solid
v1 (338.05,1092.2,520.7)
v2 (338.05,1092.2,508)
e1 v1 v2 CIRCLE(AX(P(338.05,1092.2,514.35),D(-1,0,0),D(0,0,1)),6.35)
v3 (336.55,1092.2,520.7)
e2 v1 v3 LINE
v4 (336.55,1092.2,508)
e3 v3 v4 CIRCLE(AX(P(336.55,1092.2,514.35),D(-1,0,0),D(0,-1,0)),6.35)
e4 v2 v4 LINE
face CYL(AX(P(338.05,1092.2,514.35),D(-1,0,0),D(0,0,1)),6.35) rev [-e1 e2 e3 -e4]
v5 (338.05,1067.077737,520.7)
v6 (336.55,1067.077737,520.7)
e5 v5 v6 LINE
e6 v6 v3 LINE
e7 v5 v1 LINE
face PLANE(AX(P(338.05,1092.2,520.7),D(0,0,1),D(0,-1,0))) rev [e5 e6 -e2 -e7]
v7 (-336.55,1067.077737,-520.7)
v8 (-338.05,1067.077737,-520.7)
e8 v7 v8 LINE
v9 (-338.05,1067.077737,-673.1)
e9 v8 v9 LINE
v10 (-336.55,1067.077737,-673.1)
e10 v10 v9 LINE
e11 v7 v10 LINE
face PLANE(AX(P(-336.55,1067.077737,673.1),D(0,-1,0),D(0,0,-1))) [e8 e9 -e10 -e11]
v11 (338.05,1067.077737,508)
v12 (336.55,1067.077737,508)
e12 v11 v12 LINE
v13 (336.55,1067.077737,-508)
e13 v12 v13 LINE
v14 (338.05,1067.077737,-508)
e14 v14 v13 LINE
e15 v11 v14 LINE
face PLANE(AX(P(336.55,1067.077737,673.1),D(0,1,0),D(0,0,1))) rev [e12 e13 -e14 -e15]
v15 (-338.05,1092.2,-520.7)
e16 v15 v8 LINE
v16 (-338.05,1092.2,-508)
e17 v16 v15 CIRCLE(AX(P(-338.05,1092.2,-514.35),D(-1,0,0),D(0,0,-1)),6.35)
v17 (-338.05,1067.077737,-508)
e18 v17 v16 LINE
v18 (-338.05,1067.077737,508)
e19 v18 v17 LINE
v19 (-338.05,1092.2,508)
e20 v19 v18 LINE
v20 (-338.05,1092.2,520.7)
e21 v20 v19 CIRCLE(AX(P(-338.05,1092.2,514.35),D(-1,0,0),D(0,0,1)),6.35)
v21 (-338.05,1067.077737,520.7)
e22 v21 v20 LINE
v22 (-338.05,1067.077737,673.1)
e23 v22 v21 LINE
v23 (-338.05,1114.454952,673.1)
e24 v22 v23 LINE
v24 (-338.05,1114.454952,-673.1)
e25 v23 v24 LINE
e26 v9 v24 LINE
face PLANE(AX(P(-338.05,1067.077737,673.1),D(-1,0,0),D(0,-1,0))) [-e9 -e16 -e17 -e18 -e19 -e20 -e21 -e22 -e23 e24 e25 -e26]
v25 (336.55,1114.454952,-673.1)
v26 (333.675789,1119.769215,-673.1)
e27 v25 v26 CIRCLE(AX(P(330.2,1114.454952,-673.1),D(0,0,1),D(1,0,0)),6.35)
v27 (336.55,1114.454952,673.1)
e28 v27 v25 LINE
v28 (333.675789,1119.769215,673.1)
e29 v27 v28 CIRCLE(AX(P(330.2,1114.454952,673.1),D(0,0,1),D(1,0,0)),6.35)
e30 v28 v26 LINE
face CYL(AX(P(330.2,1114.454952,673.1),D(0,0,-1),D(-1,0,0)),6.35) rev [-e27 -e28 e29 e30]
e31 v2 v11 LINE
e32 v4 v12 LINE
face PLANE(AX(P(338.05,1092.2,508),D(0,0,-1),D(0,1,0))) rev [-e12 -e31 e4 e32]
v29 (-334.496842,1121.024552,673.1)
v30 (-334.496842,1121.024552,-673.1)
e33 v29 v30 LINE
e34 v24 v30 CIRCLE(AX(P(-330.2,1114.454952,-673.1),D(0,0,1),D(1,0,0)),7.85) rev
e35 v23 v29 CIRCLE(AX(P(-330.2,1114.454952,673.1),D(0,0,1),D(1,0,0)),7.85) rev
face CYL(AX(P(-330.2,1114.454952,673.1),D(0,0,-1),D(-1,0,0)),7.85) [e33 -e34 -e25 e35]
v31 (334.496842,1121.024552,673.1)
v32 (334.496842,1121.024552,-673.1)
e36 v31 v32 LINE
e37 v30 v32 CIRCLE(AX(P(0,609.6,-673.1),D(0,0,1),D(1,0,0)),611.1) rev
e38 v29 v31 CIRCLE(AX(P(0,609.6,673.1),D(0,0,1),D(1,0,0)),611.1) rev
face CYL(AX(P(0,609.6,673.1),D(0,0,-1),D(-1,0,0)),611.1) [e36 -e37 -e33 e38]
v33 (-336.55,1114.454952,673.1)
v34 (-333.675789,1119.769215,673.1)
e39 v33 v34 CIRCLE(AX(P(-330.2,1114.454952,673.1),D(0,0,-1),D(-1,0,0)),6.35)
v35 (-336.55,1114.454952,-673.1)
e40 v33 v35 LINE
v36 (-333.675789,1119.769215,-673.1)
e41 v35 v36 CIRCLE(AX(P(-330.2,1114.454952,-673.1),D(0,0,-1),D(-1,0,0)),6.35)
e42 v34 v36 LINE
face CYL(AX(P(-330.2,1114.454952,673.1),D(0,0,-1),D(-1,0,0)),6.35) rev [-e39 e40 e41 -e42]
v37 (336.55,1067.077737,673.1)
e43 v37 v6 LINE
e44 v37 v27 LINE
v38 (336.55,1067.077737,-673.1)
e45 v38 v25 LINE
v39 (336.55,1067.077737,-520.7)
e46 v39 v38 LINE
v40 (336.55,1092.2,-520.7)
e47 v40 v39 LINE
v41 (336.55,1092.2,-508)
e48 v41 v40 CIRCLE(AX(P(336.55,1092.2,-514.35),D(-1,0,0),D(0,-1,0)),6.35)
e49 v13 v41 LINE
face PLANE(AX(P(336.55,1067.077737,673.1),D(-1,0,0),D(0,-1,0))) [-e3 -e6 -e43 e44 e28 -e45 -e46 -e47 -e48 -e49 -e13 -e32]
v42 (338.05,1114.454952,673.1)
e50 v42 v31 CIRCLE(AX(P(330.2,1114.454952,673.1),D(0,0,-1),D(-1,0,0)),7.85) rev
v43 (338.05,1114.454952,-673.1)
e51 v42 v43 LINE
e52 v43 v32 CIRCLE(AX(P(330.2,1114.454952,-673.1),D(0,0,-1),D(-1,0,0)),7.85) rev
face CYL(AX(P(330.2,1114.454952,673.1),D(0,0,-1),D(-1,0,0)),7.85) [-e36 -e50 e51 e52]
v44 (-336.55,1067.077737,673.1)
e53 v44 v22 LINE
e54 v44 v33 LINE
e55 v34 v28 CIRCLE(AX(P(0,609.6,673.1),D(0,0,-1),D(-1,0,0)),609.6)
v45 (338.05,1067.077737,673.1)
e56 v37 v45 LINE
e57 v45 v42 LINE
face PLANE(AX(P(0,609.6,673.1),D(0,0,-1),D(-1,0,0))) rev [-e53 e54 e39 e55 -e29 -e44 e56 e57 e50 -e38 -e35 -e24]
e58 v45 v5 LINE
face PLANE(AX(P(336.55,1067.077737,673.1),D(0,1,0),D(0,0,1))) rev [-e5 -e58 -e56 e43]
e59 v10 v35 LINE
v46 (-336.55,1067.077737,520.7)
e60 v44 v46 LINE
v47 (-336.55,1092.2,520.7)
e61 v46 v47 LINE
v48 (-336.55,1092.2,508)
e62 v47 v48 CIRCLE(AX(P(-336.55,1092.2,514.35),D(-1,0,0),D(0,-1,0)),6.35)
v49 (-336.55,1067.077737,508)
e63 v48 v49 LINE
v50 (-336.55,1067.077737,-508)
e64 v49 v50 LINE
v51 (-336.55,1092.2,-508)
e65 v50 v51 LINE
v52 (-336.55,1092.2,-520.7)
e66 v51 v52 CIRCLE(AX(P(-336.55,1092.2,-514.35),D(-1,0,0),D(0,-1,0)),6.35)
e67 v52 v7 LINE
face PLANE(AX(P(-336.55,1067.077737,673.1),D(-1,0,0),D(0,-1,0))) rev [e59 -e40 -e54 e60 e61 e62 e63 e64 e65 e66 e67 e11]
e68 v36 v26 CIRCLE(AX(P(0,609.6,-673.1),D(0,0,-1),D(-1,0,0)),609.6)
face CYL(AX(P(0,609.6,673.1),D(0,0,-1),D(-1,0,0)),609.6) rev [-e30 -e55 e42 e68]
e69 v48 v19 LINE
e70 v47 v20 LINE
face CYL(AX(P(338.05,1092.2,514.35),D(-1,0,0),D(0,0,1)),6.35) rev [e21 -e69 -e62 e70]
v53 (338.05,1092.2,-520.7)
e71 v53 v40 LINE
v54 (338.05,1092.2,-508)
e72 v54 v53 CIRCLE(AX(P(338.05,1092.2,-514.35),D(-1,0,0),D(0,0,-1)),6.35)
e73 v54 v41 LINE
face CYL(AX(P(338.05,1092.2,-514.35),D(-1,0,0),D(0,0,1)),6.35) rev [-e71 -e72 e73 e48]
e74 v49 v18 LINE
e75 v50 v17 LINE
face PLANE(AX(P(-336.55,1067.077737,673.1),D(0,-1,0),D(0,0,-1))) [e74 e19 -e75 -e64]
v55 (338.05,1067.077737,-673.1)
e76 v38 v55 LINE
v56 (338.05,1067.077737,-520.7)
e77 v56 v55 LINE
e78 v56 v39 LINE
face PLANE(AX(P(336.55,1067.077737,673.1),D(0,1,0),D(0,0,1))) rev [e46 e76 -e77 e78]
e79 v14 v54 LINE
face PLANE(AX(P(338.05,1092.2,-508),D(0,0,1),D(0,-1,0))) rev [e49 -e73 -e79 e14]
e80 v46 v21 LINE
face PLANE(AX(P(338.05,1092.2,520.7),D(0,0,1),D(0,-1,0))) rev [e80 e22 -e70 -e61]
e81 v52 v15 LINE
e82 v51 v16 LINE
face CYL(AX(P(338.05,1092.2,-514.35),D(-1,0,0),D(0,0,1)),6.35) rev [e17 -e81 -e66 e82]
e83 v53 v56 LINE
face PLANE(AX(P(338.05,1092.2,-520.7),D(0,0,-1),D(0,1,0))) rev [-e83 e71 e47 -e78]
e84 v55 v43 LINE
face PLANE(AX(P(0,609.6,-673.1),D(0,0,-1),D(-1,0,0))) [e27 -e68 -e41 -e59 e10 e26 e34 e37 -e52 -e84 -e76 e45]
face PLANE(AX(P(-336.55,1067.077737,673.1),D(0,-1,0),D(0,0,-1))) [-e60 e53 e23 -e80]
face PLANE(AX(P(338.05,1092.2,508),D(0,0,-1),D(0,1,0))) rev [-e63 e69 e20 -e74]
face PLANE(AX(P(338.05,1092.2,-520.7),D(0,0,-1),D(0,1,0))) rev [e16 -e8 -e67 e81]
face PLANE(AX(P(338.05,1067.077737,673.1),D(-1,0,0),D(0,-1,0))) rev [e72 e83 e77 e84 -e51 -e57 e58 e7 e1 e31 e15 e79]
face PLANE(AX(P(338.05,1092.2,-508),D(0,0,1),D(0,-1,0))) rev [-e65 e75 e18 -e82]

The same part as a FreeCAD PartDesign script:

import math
import FreeCAD as App
import Part
import Sketcher
Q = App.Units.Quantity

doc = App.newDocument("Part")
params = doc.addObject("Spreadsheet::Sheet", "Params")
for row, (alias, value) in enumerate([
    ("sketch1_radius", "609.6 mm"),
    ("sketch1_radius2", "611.1 mm"),
    ("sketch1_radius3", "6.35 mm"),
    ("pad1_length", "1346.2 mm"),
    ("sketch2_radius", "6.35 mm"),
], start=1):
    params.set(f"A{row}", alias)
    params.set(f"B{row}", "=" + value)
    params.setAlias(f"B{row}", alias)

body = doc.addObject("PartDesign::Body", "Body")

sketch1 = body.newObject("Sketcher::SketchObject", "Sketch")
sketch1.AttachmentSupport = (doc.getObject("XY_Plane"), [""])
sketch1.MapMode = "FlatFace"
sketch1.addGeometry([
    Part.LineSegment(App.Vector(-336.6, 1067.1, 0), App.Vector(-336.6, 1114.5, 0)),
    Part.ArcOfCircle(Part.Circle(App.Vector(-330.2, 1114.5, 0), App.Vector(0, 0, 1), 6.4), math.radians(123), math.radians(180)),
    Part.ArcOfCircle(Part.Circle(App.Vector(0, 609.6, 0), App.Vector(0, 0, 1), 609.6), math.radians(90), math.radians(123)),
    Part.LineSegment(App.Vector(0, 1219.2, 0), App.Vector(0, 1220.7, 0)),
    Part.ArcOfCircle(Part.Circle(App.Vector(0, 609.6, 0), App.Vector(0, 0, 1), 611.1), math.radians(90), math.radians(123)),
    Part.ArcOfCircle(Part.Circle(App.Vector(-330.2, 1114.5, 0), App.Vector(0, 0, 1), 7.8), math.radians(123), math.radians(180)),
    Part.LineSegment(App.Vector(-338.1, 1114.5, 0), App.Vector(-338.1, 1067.1, 0)),
    Part.LineSegment(App.Vector(-338.1, 1067.1, 0), App.Vector(-336.6, 1067.1, 0)),
], False)
sketch1.addConstraint([
    Sketcher.Constraint("Tangent", 0, 2, 1, 2),
    Sketcher.Constraint("Tangent", 1, 1, 2, 2),
    Sketcher.Constraint("Coincident", 2, 1, 3, 1),
    Sketcher.Constraint("Coincident", 3, 2, 4, 1),
    Sketcher.Constraint("Tangent", 4, 2, 5, 1),
    Sketcher.Constraint("Tangent", 5, 2, 6, 1),
    Sketcher.Constraint("Coincident", 6, 2, 7, 1),
    Sketcher.Constraint("Coincident", 7, 2, 0, 1),
    Sketcher.Constraint("Vertical", 0),
    Sketcher.Constraint("Vertical", 3),
    Sketcher.Constraint("Vertical", 6),
    Sketcher.Constraint("Horizontal", 7),
    Sketcher.Constraint("Coincident", 4, 3, 2, 3),
    Sketcher.Constraint("Coincident", 5, 3, 1, 3),
    Sketcher.Constraint("PointOnObject", 2, 3, -2),
    Sketcher.Constraint("PointOnObject", 3, 2, -2),
    Sketcher.Constraint("Radius", 2, Q("609.6 mm")),
    Sketcher.Constraint("Radius", 4, Q("611.1 mm")),
    Sketcher.Constraint("Radius", 1, Q("6.35 mm")),
    Sketcher.Constraint("DistanceX", 1, 3, -1, 1, Q("330.2 mm")),
    Sketcher.Constraint("DistanceY", -1, 1, 2, 3, Q("609.6 mm")),
    Sketcher.Constraint("DistanceY", 0, 1, 0, 2, Q("47.377215 mm")),
])
sketch1.setExpression("Constraints[16]", "Params.sketch1_radius")
sketch1.setExpression("Constraints[17]", "Params.sketch1_radius2")
sketch1.setExpression("Constraints[18]", "Params.sketch1_radius3")
pad1 = body.newObject("PartDesign::Pad", "Pad")
pad1.Profile = sketch1
pad1.setExpression("Length", "Params.pad1_length")
pad1.Midplane = True
doc.recompute()

mirrored = body.newObject("PartDesign::Mirrored", "Mirrored")
mirrored.Originals = [pad1]
mirrored.MirrorPlane = (doc.getObject("YZ_Plane"), [""])
body.Tip = mirrored

sketch2 = body.newObject("Sketcher::SketchObject", "Sketch001")
sketch2.AttachmentSupport = (doc.getObject("YZ_Plane"), [""])
sketch2.MapMode = "FlatFace"
sketch2.AttachmentOffset = App.Placement(App.Vector(0, 0, -338.05), App.Rotation())
sketch2.addGeometry([
    Part.LineSegment(App.Vector(1092, 508, 0), App.Vector(1067, 508, 0)),
    Part.LineSegment(App.Vector(1067, 508, 0), App.Vector(1067, 521, 0)),
    Part.LineSegment(App.Vector(1067, 521, 0), App.Vector(1092, 521, 0)),
    Part.ArcOfCircle(Part.Circle(App.Vector(1092, 514, 0), App.Vector(0, 0, 1), 6), math.radians(-90), math.radians(90)),
    Part.LineSegment(App.Vector(1067, -521, 0), App.Vector(1067, -508, 0)),
    Part.LineSegment(App.Vector(1067, -508, 0), App.Vector(1092, -508, 0)),
    Part.ArcOfCircle(Part.Circle(App.Vector(1092, -514, 0), App.Vector(0, 0, 1), 6), math.radians(-90), math.radians(90)),
    Part.LineSegment(App.Vector(1092, -521, 0), App.Vector(1067, -521, 0)),
], False)
sketch2.addConstraint([
    Sketcher.Constraint("Coincident", 0, 2, 1, 1),
    Sketcher.Constraint("Coincident", 1, 2, 2, 1),
    Sketcher.Constraint("Tangent", 2, 2, 3, 2),
    Sketcher.Constraint("Tangent", 3, 1, 0, 1),
    Sketcher.Constraint("Coincident", 4, 2, 5, 1),
    Sketcher.Constraint("Tangent", 5, 2, 6, 2),
    Sketcher.Constraint("Tangent", 6, 1, 7, 1),
    Sketcher.Constraint("Coincident", 7, 2, 4, 1),
    Sketcher.Constraint("Horizontal", 0),
    Sketcher.Constraint("Vertical", 1),
    Sketcher.Constraint("Horizontal", 2),
    Sketcher.Constraint("Vertical", 4),
    Sketcher.Constraint("Horizontal", 5),
    Sketcher.Constraint("Horizontal", 7),
    Sketcher.Constraint("Equal", 3, 6),
    Sketcher.Constraint("Symmetric", 3, 3, 6, 3, -1),
    Sketcher.Constraint("Vertical", 1, 2, 4, 2),
    Sketcher.Constraint("Radius", 3, Q("6.35 mm")),
    Sketcher.Constraint("DistanceY", -1, 1, 0, 2, Q("508 mm")),
    Sketcher.Constraint("DistanceX", -1, 1, 3, 3, Q("1092.2 mm")),
    Sketcher.Constraint("DistanceX", 0, 2, 0, 1, Q("25.122263 mm")),
])
sketch2.setExpression("Constraints[17]", "Params.sketch2_radius")
pocket1 = body.newObject("PartDesign::Pocket", "Pocket")
pocket1.Profile = sketch2
pocket1.Type = "ThroughAll"
pocket1.Reversed = True

doc.recompute()
